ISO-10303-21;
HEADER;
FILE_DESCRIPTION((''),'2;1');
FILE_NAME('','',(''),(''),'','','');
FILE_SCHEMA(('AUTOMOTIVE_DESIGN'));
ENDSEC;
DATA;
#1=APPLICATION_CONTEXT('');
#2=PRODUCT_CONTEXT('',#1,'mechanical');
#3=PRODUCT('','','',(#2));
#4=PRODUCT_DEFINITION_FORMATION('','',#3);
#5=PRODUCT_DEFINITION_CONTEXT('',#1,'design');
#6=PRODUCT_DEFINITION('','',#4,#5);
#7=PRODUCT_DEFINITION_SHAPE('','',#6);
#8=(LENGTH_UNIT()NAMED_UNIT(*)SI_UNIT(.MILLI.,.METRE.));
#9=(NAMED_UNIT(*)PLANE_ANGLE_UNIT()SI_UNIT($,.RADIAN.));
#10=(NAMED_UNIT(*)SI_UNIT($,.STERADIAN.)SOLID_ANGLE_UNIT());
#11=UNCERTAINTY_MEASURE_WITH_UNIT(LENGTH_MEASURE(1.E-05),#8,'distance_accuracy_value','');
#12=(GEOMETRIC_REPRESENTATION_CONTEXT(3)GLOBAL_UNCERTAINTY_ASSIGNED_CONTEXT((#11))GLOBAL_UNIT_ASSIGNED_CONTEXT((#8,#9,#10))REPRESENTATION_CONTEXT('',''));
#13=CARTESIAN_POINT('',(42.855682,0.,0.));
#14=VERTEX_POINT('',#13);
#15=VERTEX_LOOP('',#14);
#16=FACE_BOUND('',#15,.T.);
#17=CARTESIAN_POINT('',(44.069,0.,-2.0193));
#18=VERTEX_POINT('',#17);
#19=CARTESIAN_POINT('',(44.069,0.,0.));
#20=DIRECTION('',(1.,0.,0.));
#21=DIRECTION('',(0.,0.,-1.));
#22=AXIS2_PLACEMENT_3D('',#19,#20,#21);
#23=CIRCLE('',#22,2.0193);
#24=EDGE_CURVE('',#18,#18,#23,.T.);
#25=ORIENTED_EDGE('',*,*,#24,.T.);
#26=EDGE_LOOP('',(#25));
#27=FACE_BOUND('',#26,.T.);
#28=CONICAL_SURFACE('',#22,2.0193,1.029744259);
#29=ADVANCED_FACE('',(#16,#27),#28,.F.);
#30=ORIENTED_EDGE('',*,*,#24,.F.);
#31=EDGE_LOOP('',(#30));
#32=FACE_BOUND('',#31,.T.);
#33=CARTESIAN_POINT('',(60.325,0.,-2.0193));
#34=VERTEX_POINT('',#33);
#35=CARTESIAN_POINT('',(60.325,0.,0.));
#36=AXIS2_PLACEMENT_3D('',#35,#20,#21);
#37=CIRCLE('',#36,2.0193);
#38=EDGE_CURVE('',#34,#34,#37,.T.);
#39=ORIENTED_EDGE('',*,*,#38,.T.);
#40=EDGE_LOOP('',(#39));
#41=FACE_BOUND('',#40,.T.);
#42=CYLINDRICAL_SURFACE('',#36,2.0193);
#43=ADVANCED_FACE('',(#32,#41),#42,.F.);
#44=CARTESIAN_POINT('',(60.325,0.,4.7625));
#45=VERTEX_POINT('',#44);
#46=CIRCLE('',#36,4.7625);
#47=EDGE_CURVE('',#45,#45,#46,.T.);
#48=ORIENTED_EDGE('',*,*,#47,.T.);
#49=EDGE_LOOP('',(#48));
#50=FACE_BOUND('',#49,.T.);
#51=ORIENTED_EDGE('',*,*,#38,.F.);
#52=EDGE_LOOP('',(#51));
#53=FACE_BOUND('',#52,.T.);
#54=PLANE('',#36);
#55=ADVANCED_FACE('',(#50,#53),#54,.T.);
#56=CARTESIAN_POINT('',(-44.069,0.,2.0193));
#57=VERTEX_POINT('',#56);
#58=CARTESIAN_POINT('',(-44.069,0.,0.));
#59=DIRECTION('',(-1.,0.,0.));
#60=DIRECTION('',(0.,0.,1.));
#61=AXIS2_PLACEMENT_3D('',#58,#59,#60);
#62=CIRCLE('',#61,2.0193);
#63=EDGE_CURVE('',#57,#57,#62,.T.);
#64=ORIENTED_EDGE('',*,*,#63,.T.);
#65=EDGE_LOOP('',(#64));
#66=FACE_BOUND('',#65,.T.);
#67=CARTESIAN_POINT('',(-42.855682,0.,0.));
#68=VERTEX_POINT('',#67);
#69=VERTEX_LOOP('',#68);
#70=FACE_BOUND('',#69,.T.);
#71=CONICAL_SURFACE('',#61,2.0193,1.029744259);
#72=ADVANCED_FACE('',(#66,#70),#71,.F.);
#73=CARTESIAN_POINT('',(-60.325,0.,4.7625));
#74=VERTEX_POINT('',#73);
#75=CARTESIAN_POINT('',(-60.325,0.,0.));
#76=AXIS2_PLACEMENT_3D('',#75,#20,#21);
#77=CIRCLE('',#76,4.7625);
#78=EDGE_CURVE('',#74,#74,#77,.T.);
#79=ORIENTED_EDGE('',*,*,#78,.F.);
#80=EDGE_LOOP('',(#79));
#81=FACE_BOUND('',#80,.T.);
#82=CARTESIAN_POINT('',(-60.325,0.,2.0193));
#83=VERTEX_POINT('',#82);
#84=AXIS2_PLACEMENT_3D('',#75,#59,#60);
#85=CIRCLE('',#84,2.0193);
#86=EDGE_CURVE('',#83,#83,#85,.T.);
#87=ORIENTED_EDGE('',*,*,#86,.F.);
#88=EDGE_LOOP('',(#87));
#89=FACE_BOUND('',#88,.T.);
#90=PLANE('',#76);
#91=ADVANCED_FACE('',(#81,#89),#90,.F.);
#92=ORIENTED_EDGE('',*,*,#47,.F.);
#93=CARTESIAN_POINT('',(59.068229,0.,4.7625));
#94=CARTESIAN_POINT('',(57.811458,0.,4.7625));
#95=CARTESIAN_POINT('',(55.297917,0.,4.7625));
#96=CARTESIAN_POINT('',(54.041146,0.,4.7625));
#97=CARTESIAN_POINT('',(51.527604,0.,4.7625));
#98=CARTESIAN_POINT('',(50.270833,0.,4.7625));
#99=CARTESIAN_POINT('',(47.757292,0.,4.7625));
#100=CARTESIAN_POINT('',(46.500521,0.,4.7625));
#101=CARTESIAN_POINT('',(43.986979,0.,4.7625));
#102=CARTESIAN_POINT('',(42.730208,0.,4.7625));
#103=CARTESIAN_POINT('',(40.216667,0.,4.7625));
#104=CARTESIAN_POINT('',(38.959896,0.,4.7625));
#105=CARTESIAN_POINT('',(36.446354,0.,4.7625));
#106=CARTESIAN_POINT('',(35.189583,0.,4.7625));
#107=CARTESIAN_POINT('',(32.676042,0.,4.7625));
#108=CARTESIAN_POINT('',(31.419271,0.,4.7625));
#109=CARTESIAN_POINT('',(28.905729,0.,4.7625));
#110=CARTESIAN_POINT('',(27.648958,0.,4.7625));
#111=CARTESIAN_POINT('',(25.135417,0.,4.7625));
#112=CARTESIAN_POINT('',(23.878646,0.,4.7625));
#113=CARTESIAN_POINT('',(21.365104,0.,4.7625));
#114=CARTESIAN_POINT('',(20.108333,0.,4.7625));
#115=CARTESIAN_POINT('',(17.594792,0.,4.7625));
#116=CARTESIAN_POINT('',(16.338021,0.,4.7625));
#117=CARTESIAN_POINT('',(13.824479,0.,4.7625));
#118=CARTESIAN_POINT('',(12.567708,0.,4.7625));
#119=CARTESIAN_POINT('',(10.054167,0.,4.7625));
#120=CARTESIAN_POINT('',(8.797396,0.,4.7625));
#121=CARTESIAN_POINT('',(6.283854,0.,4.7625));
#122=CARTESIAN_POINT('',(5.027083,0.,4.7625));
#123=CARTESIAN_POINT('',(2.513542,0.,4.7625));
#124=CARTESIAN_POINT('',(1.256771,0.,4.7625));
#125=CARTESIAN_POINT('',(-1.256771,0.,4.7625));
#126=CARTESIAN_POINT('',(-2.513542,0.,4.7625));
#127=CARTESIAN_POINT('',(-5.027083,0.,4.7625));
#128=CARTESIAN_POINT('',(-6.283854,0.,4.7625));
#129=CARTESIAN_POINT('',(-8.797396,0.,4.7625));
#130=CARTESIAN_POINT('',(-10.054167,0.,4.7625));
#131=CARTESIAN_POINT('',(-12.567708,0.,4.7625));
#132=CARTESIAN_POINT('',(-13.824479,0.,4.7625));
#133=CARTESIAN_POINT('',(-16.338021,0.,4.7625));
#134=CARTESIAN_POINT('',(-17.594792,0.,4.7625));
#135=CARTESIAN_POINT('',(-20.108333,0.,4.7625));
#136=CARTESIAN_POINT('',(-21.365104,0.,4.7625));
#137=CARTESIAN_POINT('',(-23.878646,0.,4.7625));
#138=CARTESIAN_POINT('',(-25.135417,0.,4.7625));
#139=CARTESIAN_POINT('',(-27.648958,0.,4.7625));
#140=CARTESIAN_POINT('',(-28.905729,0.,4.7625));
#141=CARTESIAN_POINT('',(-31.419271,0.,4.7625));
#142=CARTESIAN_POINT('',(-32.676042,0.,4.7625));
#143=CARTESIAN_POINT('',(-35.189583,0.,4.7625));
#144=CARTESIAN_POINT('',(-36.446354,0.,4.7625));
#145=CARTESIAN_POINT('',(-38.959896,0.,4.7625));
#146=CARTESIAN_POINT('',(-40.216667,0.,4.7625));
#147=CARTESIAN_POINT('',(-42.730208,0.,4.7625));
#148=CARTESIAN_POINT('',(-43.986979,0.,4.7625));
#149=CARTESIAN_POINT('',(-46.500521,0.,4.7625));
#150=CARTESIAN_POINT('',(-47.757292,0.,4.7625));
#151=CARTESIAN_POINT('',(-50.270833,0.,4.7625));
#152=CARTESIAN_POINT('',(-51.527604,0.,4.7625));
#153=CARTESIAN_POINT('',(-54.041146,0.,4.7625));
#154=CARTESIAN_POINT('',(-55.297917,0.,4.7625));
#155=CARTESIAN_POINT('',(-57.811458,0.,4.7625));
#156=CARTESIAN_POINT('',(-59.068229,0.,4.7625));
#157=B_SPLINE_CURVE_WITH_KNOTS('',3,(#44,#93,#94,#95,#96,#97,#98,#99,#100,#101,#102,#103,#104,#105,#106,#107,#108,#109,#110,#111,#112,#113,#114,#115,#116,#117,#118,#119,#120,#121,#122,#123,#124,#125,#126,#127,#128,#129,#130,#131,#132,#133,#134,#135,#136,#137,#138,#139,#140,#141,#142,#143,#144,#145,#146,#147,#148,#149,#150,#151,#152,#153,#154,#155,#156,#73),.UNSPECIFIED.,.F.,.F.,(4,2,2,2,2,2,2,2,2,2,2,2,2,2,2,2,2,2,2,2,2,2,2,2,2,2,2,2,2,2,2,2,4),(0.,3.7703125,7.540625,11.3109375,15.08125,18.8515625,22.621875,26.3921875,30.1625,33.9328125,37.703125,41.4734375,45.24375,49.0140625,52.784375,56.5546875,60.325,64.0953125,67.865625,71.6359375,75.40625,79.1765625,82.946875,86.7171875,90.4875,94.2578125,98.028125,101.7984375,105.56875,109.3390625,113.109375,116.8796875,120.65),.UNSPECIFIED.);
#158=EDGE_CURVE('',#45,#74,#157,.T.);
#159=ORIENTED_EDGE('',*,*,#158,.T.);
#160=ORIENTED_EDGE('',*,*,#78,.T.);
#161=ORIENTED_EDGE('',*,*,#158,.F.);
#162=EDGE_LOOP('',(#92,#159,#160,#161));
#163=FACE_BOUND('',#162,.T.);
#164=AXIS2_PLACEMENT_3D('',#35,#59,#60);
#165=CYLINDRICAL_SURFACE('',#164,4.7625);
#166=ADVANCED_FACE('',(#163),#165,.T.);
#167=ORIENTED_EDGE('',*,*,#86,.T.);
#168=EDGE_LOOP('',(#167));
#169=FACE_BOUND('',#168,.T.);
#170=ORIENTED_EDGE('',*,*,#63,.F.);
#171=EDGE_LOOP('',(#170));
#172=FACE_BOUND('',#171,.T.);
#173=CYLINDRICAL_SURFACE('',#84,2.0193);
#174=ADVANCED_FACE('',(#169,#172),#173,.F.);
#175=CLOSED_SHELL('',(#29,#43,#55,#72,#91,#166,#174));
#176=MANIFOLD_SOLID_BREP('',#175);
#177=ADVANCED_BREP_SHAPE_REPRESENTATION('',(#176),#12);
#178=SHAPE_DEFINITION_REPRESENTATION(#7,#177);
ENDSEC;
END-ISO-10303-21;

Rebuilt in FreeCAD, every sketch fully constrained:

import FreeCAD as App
import Part
import Sketcher
Q = App.Units.Quantity

doc = App.newDocument("Part")
params = doc.addObject("Spreadsheet::Sheet", "Params")
for row, (alias, value) in enumerate([
    ("sketch1_diameter", "0.375 in"),
    ("pad1_length", "4.75 in"),
    ("sketch2_diameter", "0.159 in"),
    ("hole_diameter", "0.159 in"),
    ("hole_depth", "0.64 in"),
    ("sketch3_diameter", "0.159 in"),
    ("hole2_diameter", "0.159 in"),
    ("hole2_depth", "0.64 in"),
], start=1):
    params.set(f"A{row}", alias)
    params.set(f"B{row}", "=" + value)
    params.setAlias(f"B{row}", alias)

body = doc.addObject("PartDesign::Body", "Body")

# Sketch on YZ plane
sketch1 = body.newObject("Sketcher::SketchObject", "Sketch")
sketch1.AttachmentSupport = (doc.getObject("YZ_Plane"), [""])
sketch1.MapMode = "FlatFace"
sketch1.addGeometry(Part.Circle(App.Vector(0, 0, 0), App.Vector(0, 0, 1), 4.8), False)
sketch1.addConstraint([
    Sketcher.Constraint("Coincident", 0, 3, -1, 1),
    Sketcher.Constraint("Diameter", 0, Q("0.375 in")),
])
sketch1.setExpression("Constraints[1]", "Params.sketch1_diameter")
pad1 = body.newObject("PartDesign::Pad", "Pad")
pad1.Profile = sketch1
pad1.setExpression("Length", "Params.pad1_length")
pad1.Midplane = True

# Sketch on YZ plane
sketch2 = body.newObject("Sketcher::SketchObject", "Sketch001")
sketch2.AttachmentSupport = (doc.getObject("YZ_Plane"), [""])
sketch2.MapMode = "FlatFace"
sketch2.AttachmentOffset = App.Placement(App.Vector(0, 0, 2.375 * 25.4), App.Rotation())
sketch2.addGeometry(Part.Circle(App.Vector(0, 0, 0), App.Vector(0, 0, 1), 2), False)
sketch2.addConstraint([
    Sketcher.Constraint("Coincident", 0, 3, -1, 1),
    Sketcher.Constraint("Diameter", 0, Q("0.159 in")),
])
sketch2.setExpression("Constraints[1]", "Params.sketch2_diameter")
doc.recompute()
hole = body.newObject("PartDesign::Hole", "Hole")
hole.Profile = sketch2
hole.ThreadType = "None"
hole.setExpression("Diameter", "Params.hole_diameter")
hole.DepthType = "Dimension"
hole.setExpression("Depth", "Params.hole_depth")
hole.DrillPoint = "Angled"
hole.DrillPointAngle = 118

# Sketch on YZ plane
sketch3 = body.newObject("Sketcher::SketchObject", "Sketch002")
sketch3.AttachmentSupport = (doc.getObject("YZ_Plane"), [""])
sketch3.MapMode = "FlatFace"
sketch3.AttachmentOffset = App.Placement(App.Vector(0, 0, -2.375 * 25.4), App.Rotation())
sketch3.addGeometry(Part.Circle(App.Vector(0, 0, 0), App.Vector(0, 0, 1), 2), False)
sketch3.addConstraint([
    Sketcher.Constraint("Coincident", 0, 3, -1, 1),
    Sketcher.Constraint("Diameter", 0, Q("0.159 in")),
])
sketch3.setExpression("Constraints[1]", "Params.sketch3_diameter")
doc.recompute()
hole2 = body.newObject("PartDesign::Hole", "Hole001")
hole2.Profile = sketch3
hole2.ThreadType = "None"
hole2.setExpression("Diameter", "Params.hole2_diameter")
hole2.DepthType = "Dimension"
hole2.setExpression("Depth", "Params.hole2_depth")
hole2.DrillPoint = "Angled"
hole2.DrillPointAngle = 118
hole2.Reversed = True

doc.recompute()
